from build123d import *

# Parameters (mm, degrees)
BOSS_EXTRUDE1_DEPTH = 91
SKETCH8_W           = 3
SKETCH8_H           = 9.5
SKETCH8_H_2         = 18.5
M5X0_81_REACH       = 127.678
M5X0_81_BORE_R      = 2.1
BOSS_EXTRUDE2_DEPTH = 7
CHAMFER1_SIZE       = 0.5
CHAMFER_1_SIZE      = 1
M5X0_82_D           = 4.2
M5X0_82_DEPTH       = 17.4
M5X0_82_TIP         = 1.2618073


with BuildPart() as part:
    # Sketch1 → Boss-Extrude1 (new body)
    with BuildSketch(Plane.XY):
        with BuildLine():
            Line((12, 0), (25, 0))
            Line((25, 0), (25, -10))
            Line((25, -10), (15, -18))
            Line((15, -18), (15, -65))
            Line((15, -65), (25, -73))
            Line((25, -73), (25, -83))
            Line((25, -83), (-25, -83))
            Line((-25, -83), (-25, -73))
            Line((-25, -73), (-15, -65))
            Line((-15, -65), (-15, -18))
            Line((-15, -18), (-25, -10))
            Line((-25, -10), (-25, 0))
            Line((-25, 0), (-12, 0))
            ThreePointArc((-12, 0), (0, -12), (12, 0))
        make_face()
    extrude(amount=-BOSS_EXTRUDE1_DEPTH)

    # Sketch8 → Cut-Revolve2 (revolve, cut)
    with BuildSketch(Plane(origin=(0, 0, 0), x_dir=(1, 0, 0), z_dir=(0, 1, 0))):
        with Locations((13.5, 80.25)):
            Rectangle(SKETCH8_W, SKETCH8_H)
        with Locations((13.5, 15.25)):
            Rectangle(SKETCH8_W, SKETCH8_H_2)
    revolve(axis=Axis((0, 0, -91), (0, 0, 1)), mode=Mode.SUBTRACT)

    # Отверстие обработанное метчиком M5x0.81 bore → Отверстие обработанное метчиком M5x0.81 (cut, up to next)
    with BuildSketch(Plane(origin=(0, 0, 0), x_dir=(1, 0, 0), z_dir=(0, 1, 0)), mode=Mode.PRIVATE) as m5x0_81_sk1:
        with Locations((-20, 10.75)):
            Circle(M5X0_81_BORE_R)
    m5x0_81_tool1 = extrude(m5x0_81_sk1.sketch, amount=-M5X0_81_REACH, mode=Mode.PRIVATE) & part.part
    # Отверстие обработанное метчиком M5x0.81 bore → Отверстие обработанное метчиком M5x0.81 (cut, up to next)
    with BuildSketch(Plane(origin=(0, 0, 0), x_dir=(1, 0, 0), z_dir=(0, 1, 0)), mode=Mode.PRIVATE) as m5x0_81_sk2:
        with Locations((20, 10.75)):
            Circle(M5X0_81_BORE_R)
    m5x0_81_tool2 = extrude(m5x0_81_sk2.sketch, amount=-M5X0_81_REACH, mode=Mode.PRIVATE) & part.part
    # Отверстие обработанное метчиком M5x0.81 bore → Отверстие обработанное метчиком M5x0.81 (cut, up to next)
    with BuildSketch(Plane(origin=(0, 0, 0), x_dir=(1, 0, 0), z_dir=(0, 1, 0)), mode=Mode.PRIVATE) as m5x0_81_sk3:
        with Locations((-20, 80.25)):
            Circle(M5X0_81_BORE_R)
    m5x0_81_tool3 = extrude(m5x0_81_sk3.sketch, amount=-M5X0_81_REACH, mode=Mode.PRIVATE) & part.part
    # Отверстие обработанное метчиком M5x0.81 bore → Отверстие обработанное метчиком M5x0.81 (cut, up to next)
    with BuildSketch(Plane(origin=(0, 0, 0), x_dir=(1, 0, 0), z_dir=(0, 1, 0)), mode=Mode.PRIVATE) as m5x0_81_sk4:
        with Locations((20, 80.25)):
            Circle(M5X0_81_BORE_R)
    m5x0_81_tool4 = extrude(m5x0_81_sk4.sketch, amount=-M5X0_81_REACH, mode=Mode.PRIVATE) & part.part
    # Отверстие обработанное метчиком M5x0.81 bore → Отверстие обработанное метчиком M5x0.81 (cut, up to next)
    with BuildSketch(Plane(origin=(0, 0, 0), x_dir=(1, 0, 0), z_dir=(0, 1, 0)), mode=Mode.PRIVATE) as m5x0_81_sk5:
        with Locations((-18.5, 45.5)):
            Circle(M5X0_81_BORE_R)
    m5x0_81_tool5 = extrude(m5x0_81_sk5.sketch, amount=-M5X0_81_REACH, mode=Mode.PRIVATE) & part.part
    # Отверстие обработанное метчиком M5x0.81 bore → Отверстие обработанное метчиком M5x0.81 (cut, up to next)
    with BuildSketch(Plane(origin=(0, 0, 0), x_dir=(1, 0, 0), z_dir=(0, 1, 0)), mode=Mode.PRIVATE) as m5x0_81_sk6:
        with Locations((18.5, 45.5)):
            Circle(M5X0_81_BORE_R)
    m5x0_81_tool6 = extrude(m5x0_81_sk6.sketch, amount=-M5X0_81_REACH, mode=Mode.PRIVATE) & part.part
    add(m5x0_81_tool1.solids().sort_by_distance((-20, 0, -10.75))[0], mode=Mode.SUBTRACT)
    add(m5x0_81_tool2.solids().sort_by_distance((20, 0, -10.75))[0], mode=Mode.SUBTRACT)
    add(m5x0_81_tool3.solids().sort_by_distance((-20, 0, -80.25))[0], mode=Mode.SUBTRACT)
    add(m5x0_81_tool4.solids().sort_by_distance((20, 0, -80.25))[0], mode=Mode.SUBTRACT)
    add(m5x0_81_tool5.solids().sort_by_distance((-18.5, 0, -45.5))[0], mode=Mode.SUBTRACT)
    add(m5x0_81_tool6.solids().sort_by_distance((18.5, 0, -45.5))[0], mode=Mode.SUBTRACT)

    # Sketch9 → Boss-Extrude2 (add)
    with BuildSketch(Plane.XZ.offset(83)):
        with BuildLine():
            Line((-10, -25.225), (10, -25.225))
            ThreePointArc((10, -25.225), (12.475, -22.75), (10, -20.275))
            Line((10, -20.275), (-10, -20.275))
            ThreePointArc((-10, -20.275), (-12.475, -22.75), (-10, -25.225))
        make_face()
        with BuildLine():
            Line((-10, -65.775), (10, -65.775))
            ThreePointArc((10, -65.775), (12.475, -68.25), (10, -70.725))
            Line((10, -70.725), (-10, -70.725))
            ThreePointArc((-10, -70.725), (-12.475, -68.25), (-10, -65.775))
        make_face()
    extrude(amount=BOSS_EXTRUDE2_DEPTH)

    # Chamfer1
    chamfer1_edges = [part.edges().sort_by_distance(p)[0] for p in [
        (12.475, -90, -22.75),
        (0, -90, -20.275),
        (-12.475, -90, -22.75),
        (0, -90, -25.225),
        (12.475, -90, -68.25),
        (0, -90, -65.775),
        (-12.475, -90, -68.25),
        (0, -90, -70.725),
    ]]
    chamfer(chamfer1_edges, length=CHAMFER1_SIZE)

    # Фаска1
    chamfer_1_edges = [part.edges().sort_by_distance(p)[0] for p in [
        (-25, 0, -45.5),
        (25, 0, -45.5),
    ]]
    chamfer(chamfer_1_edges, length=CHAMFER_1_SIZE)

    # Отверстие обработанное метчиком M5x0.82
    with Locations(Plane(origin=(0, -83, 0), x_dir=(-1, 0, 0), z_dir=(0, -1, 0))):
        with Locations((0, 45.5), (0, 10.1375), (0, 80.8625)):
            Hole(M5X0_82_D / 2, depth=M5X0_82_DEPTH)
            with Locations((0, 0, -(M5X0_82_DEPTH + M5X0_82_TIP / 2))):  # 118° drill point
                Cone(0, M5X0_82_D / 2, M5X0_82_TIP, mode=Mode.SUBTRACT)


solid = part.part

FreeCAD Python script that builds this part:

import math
import FreeCAD as App
import Part
import Sketcher
Q = App.Units.Quantity


def edges_at(feature, points):
    """Names of the edges that pass closest to the given points."""
    edges = feature.Shape.Edges
    near = lambda p: min(range(len(edges)), key=lambda i: edges[i].distToShape(Part.Vertex(*p))[0])
    return sorted({f"Edge{near(p) + 1}" for p in points})

doc = App.newDocument("Part")
body = doc.addObject("PartDesign::Body", "Body")

sketch1 = doc.addObject("Sketcher::SketchObject", "Sketch")
body.addObject(sketch1)
sketch1.AttachmentSupport = (doc.XY_Plane, [""])
sketch1.MapMode = "FlatFace"
sketch1.addGeometry(Part.LineSegment(App.Vector(25, 0, 0), App.Vector(12, 0, 0)), False)
sketch1.addGeometry(Part.ArcOfCircle(Part.Circle(App.Vector(0, 0, 0), App.Vector(0, 0, 1), 12), math.radians(180), math.radians(360)), False)
sketch1.addGeometry(Part.LineSegment(App.Vector(-12, 0, 0), App.Vector(-25, 0, 0)), False)
sketch1.addGeometry(Part.LineSegment(App.Vector(-25, 0, 0), App.Vector(-25, -10, 0)), False)
sketch1.addGeometry(Part.LineSegment(App.Vector(-25, -10, 0), App.Vector(-15, -18, 0)), False)
sketch1.addGeometry(Part.LineSegment(App.Vector(-15, -18, 0), App.Vector(-15, -65, 0)), False)
sketch1.addGeometry(Part.LineSegment(App.Vector(-15, -65, 0), App.Vector(-25, -73, 0)), False)
sketch1.addGeometry(Part.LineSegment(App.Vector(-25, -73, 0), App.Vector(-25, -83, 0)), False)
sketch1.addGeometry(Part.LineSegment(App.Vector(-25, -83, 0), App.Vector(25, -83, 0)), False)
sketch1.addGeometry(Part.LineSegment(App.Vector(25, -83, 0), App.Vector(25, -73, 0)), False)
sketch1.addGeometry(Part.LineSegment(App.Vector(25, -73, 0), App.Vector(15, -65, 0)), False)
sketch1.addGeometry(Part.LineSegment(App.Vector(15, -65, 0), App.Vector(15, -18, 0)), False)
sketch1.addGeometry(Part.LineSegment(App.Vector(15, -18, 0), App.Vector(25, -10, 0)), False)
sketch1.addGeometry(Part.LineSegment(App.Vector(25, -10, 0), App.Vector(25, 0, 0)), False)
sketch1.addConstraint(Sketcher.Constraint("Coincident", 0, 2, 1, 2))
sketch1.addConstraint(Sketcher.Constraint("Coincident", 1, 1, 2, 1))
sketch1.addConstraint(Sketcher.Constraint("Coincident", 2, 2, 3, 1))
sketch1.addConstraint(Sketcher.Constraint("Coincident", 3, 2, 4, 1))
sketch1.addConstraint(Sketcher.Constraint("Coincident", 4, 2, 5, 1))
sketch1.addConstraint(Sketcher.Constraint("Coincident", 5, 2, 6, 1))
sketch1.addConstraint(Sketcher.Constraint("Coincident", 6, 2, 7, 1))
sketch1.addConstraint(Sketcher.Constraint("Coincident", 7, 2, 8, 1))
sketch1.addConstraint(Sketcher.Constraint("Coincident", 8, 2, 9, 1))
sketch1.addConstraint(Sketcher.Constraint("Coincident", 9, 2, 10, 1))
sketch1.addConstraint(Sketcher.Constraint("Coincident", 10, 2, 11, 1))
sketch1.addConstraint(Sketcher.Constraint("Coincident", 11, 2, 12, 1))
sketch1.addConstraint(Sketcher.Constraint("Coincident", 12, 2, 13, 1))
sketch1.addConstraint(Sketcher.Constraint("Coincident", 13, 2, 0, 1))
sketch1.addConstraint(Sketcher.Constraint("Horizontal", 0))
sketch1.addConstraint(Sketcher.Constraint("Horizontal", 2))
sketch1.addConstraint(Sketcher.Constraint("Vertical", 3))
sketch1.addConstraint(Sketcher.Constraint("Vertical", 5))
sketch1.addConstraint(Sketcher.Constraint("Vertical", 7))
sketch1.addConstraint(Sketcher.Constraint("Horizontal", 8))
sketch1.addConstraint(Sketcher.Constraint("Vertical", 9))
sketch1.addConstraint(Sketcher.Constraint("Vertical", 11))
sketch1.addConstraint(Sketcher.Constraint("Vertical", 13))
sketch1.addConstraint(Sketcher.Constraint("Coincident", 1, 3, -1, 1))
sketch1.addConstraint(Sketcher.Constraint("Symmetric", 2, 2, 13, 2, -1, 1))
sketch1.addConstraint(Sketcher.Constraint("Symmetric", 6, 2, 9, 2, -2))
sketch1.addConstraint(Sketcher.Constraint("Symmetric", 5, 2, 10, 2, -2))
sketch1.addConstraint(Sketcher.Constraint("PointOnObject", 0, 2, -1))
sketch1.addConstraint(Sketcher.Constraint("Parallel", 4, 10))
sketch1.addConstraint(Sketcher.Constraint("Parallel", 6, 12))
sketch1.addConstraint(Sketcher.Constraint("Horizontal", 4, 2, 11, 2))
sketch1.addConstraint(Sketcher.Constraint("Vertical", 3, 2, 6, 2))
sketch1.addConstraint(Sketcher.Constraint("Equal", 3, 7))
sketch1.addConstraint(Sketcher.Constraint("Radius", 1, Q("12 mm")))
sketch1.addConstraint(Sketcher.Constraint("DistanceX", 0, 2, 0, 1, Q("13 mm")))
sketch1.addConstraint(Sketcher.Constraint("DistanceY", 3, 2, 3, 1, Q("10 mm")))
sketch1.addConstraint(Sketcher.Constraint("DistanceY", 5, 2, 5, 1, Q("47 mm")))
sketch1.addConstraint(Sketcher.Constraint("DistanceX", 4, 2, -1, 1, Q("15 mm")))
sketch1.addConstraint(Sketcher.Constraint("DistanceY", 4, 2, -1, 1, Q("18 mm")))
pad1 = doc.addObject("PartDesign::Pad", "Pad")
body.addObject(pad1)
pad1.Profile = sketch1
pad1.Length = 91
pad1.Reversed = True

sketch2 = doc.addObject("Sketcher::SketchObject", "Sketch001")
body.addObject(sketch2)
sketch2.AttachmentSupport = (doc.XZ_Plane, [""])
sketch2.MapMode = "FlatFace"
sketch2.addGeometry(Part.LineSegment(App.Vector(12, -85, 0), App.Vector(12, -75.5, 0)), False)
sketch2.addGeometry(Part.LineSegment(App.Vector(12, -75.5, 0), App.Vector(15, -75.5, 0)), False)
sketch2.addGeometry(Part.LineSegment(App.Vector(15, -75.5, 0), App.Vector(15, -85, 0)), False)
sketch2.addGeometry(Part.LineSegment(App.Vector(15, -85, 0), App.Vector(12, -85, 0)), False)
sketch2.addGeometry(Part.LineSegment(App.Vector(12, -24.5, 0), App.Vector(12, -6, 0)), False)
sketch2.addGeometry(Part.LineSegment(App.Vector(12, -6, 0), App.Vector(15, -6, 0)), False)
sketch2.addGeometry(Part.LineSegment(App.Vector(15, -6, 0), App.Vector(15, -24.5, 0)), False)
sketch2.addGeometry(Part.LineSegment(App.Vector(15, -24.5, 0), App.Vector(12, -24.5, 0)), False)
sketch2.addConstraint(Sketcher.Constraint("Coincident", 0, 2, 1, 1))
sketch2.addConstraint(Sketcher.Constraint("Coincident", 1, 2, 2, 1))
sketch2.addConstraint(Sketcher.Constraint("Coincident", 2, 2, 3, 1))
sketch2.addConstraint(Sketcher.Constraint("Coincident", 3, 2, 0, 1))
sketch2.addConstraint(Sketcher.Constraint("Coincident", 4, 2, 5, 1))
sketch2.addConstraint(Sketcher.Constraint("Coincident", 5, 2, 6, 1))
sketch2.addConstraint(Sketcher.Constraint("Coincident", 6, 2, 7, 1))
sketch2.addConstraint(Sketcher.Constraint("Coincident", 7, 2, 4, 1))
sketch2.addConstraint(Sketcher.Constraint("Vertical", 0))
sketch2.addConstraint(Sketcher.Constraint("Horizontal", 1))
sketch2.addConstraint(Sketcher.Constraint("Vertical", 2))
sketch2.addConstraint(Sketcher.Constraint("Horizontal", 3))
sketch2.addConstraint(Sketcher.Constraint("Vertical", 4))
sketch2.addConstraint(Sketcher.Constraint("Horizontal", 5))
sketch2.addConstraint(Sketcher.Constraint("Vertical", 6))
sketch2.addConstraint(Sketcher.Constraint("Horizontal", 7))
sketch2.addConstraint(Sketcher.Constraint("Vertical", 3, 2, 4, 2))
sketch2.addConstraint(Sketcher.Constraint("Vertical", 2, 2, 5, 2))
sketch2.addConstraint(Sketcher.Constraint("DistanceX", 1, 1, 1, 2, Q("3 mm")))
sketch2.addConstraint(Sketcher.Constraint("DistanceY", 0, 1, 0, 2, Q("9.5 mm")))
sketch2.addConstraint(Sketcher.Constraint("DistanceY", 4, 1, 4, 2, Q("18.5 mm")))
sketch2.addConstraint(Sketcher.Constraint("DistanceX", -1, 1, 0, 2, Q("12 mm")))
sketch2.addConstraint(Sketcher.Constraint("DistanceY", 2, 2, -1, 1, Q("85 mm")))
sketch2.addConstraint(Sketcher.Constraint("DistanceY", 4, 2, -1, 1, Q("6 mm")))
groove = doc.addObject("PartDesign::Groove", "Groove")
body.addObject(groove)
groove.Profile = sketch2
groove.ReferenceAxis = (sketch2, ["V_Axis"])
groove.Angle = 360

sketch3 = doc.addObject("Sketcher::SketchObject", "Sketch002")
body.addObject(sketch3)
sketch3.AttachmentSupport = (doc.XZ_Plane, [""])
sketch3.MapMode = "FlatFace"
sketch3.addGeometry(Part.Circle(App.Vector(-20, -10.8, 0), App.Vector(0, 0, 1), 2.1), False)
sketch3.addConstraint(Sketcher.Constraint("Diameter", 0, Q("4.2 mm")))
sketch3.addConstraint(Sketcher.Constraint("DistanceX", 0, 3, -1, 1, Q("20 mm")))
sketch3.addConstraint(Sketcher.Constraint("DistanceY", 0, 3, -1, 1, Q("10.75 mm")))
pocket1 = doc.addObject("PartDesign::Pocket", "Pocket")
body.addObject(pocket1)
pocket1.Profile = sketch3
pocket1.Type = "UpToFirst"
pocket1.Reversed = True

sketch4 = doc.addObject("Sketcher::SketchObject", "Sketch003")
body.addObject(sketch4)
sketch4.AttachmentSupport = (doc.XZ_Plane, [""])
sketch4.MapMode = "FlatFace"
sketch4.addGeometry(Part.Circle(App.Vector(20, -10.8, 0), App.Vector(0, 0, 1), 2.1), False)
sketch4.addConstraint(Sketcher.Constraint("Diameter", 0, Q("4.2 mm")))
sketch4.addConstraint(Sketcher.Constraint("DistanceX", -1, 1, 0, 3, Q("20 mm")))
sketch4.addConstraint(Sketcher.Constraint("DistanceY", 0, 3, -1, 1, Q("10.75 mm")))
pocket2 = doc.addObject("PartDesign::Pocket", "Pocket001")
body.addObject(pocket2)
pocket2.Profile = sketch4
pocket2.Type = "UpToFirst"
pocket2.Reversed = True

sketch5 = doc.addObject("Sketcher::SketchObject", "Sketch004")
body.addObject(sketch5)
sketch5.AttachmentSupport = (doc.XZ_Plane, [""])
sketch5.MapMode = "FlatFace"
sketch5.addGeometry(Part.Circle(App.Vector(-20, -80.2, 0), App.Vector(0, 0, 1), 2.1), False)
sketch5.addConstraint(Sketcher.Constraint("Diameter", 0, Q("4.2 mm")))
sketch5.addConstraint(Sketcher.Constraint("DistanceX", 0, 3, -1, 1, Q("20 mm")))
sketch5.addConstraint(Sketcher.Constraint("DistanceY", 0, 3, -1, 1, Q("80.25 mm")))
pocket3 = doc.addObject("PartDesign::Pocket", "Pocket002")
body.addObject(pocket3)
pocket3.Profile = sketch5
pocket3.Type = "UpToFirst"
pocket3.Reversed = True

sketch6 = doc.addObject("Sketcher::SketchObject", "Sketch005")
body.addObject(sketch6)
sketch6.AttachmentSupport = (doc.XZ_Plane, [""])
sketch6.MapMode = "FlatFace"
sketch6.addGeometry(Part.Circle(App.Vector(20, -80.2, 0), App.Vector(0, 0, 1), 2.1), False)
sketch6.addConstraint(Sketcher.Constraint("Diameter", 0, Q("4.2 mm")))
sketch6.addConstraint(Sketcher.Constraint("DistanceX", -1, 1, 0, 3, Q("20 mm")))
sketch6.addConstraint(Sketcher.Constraint("DistanceY", 0, 3, -1, 1, Q("80.25 mm")))
pocket4 = doc.addObject("PartDesign::Pocket", "Pocket003")
body.addObject(pocket4)
pocket4.Profile = sketch6
pocket4.Type = "UpToFirst"
pocket4.Reversed = True

sketch7 = doc.addObject("Sketcher::SketchObject", "Sketch006")
body.addObject(sketch7)
sketch7.AttachmentSupport = (doc.XZ_Plane, [""])
sketch7.MapMode = "FlatFace"
sketch7.addGeometry(Part.Circle(App.Vector(-18.5, -45.5, 0), App.Vector(0, 0, 1), 2.1), False)
sketch7.addConstraint(Sketcher.Constraint("Diameter", 0, Q("4.2 mm")))
sketch7.addConstraint(Sketcher.Constraint("DistanceX", 0, 3, -1, 1, Q("18.5 mm")))
sketch7.addConstraint(Sketcher.Constraint("DistanceY", 0, 3, -1, 1, Q("45.5 mm")))
pocket5 = doc.addObject("PartDesign::Pocket", "Pocket004")
body.addObject(pocket5)
pocket5.Profile = sketch7
pocket5.Type = "UpToFirst"
pocket5.Reversed = True

sketch8 = doc.addObject("Sketcher::SketchObject", "Sketch007")
body.addObject(sketch8)
sketch8.AttachmentSupport = (doc.XZ_Plane, [""])
sketch8.MapMode = "FlatFace"
sketch8.addGeometry(Part.Circle(App.Vector(18.5, -45.5, 0), App.Vector(0, 0, 1), 2.1), False)
sketch8.addConstraint(Sketcher.Constraint("Diameter", 0, Q("4.2 mm")))
sketch8.addConstraint(Sketcher.Constraint("DistanceX", -1, 1, 0, 3, Q("18.5 mm")))
sketch8.addConstraint(Sketcher.Constraint("DistanceY", 0, 3, -1, 1, Q("45.5 mm")))
pocket6 = doc.addObject("PartDesign::Pocket", "Pocket005")
body.addObject(pocket6)
pocket6.Profile = sketch8
pocket6.Type = "UpToFirst"
pocket6.Reversed = True

sketch9 = doc.addObject("Sketcher::SketchObject", "Sketch008")
body.addObject(sketch9)
sketch9.AttachmentSupport = (doc.XZ_Plane, [""])
sketch9.MapMode = "FlatFace"
sketch9.AttachmentOffset = App.Placement(App.Vector(0, 0, 83), App.Rotation())
sketch9.addGeometry(Part.LineSegment(App.Vector(-10, -25.2, 0), App.Vector(10, -25.2, 0)), False)
sketch9.addGeometry(Part.ArcOfCircle(Part.Circle(App.Vector(10, -22.8, 0), App.Vector(0, 0, 1), 2.5), math.radians(-90), math.radians(90)), False)
sketch9.addGeometry(Part.LineSegment(App.Vector(10, -20.3, 0), App.Vector(-10, -20.3, 0)), False)
sketch9.addGeometry(Part.ArcOfCircle(Part.Circle(App.Vector(-10, -22.8, 0), App.Vector(0, 0, 1), 2.5), math.radians(90), math.radians(270)), False)
sketch9.addGeometry(Part.LineSegment(App.Vector(10, -65.8, 0), App.Vector(-10, -65.8, 0)), False)
sketch9.addGeometry(Part.ArcOfCircle(Part.Circle(App.Vector(-10, -68.2, 0), App.Vector(0, 0, 1), 2.5), math.radians(90), math.radians(270)), False)
sketch9.addGeometry(Part.LineSegment(App.Vector(-10, -70.7, 0), App.Vector(10, -70.7, 0)), False)
sketch9.addGeometry(Part.ArcOfCircle(Part.Circle(App.Vector(10, -68.2, 0), App.Vector(0, 0, 1), 2.5), math.radians(-90), math.radians(90)), False)
sketch9.addConstraint(Sketcher.Constraint("Tangent", 0, 2, 1, 1))
sketch9.addConstraint(Sketcher.Constraint("Tangent", 1, 2, 2, 1))
sketch9.addConstraint(Sketcher.Constraint("Tangent", 2, 2, 3, 1))
sketch9.addConstraint(Sketcher.Constraint("Tangent", 3, 2, 0, 1))
sketch9.addConstraint(Sketcher.Constraint("Tangent", 4, 2, 5, 1))
sketch9.addConstraint(Sketcher.Constraint("Tangent", 5, 2, 6, 1))
sketch9.addConstraint(Sketcher.Constraint("Tangent", 6, 2, 7, 1))
sketch9.addConstraint(Sketcher.Constraint("Tangent", 7, 2, 4, 1))
sketch9.addConstraint(Sketcher.Constraint("Horizontal", 0))
sketch9.addConstraint(Sketcher.Constraint("Horizontal", 2))
sketch9.addConstraint(Sketcher.Constraint("Horizontal", 4))
sketch9.addConstraint(Sketcher.Constraint("Horizontal", 6))
sketch9.addConstraint(Sketcher.Constraint("Equal", 3, 5))
sketch9.addConstraint(Sketcher.Constraint("Vertical", 3, 3, 5, 3))
sketch9.addConstraint(Sketcher.Constraint("Vertical", 1, 3, 7, 3))
sketch9.addConstraint(Sketcher.Constraint("DistanceX", 0, 1, 0, 2, Q("20 mm")))
sketch9.addConstraint(Sketcher.Constraint("DistanceX", -1, 1, 1, 3, Q("10 mm")))
sketch9.addConstraint(Sketcher.Constraint("Radius", 1, Q("2.475 mm")))
sketch9.addConstraint(Sketcher.Constraint("DistanceY", 5, 3, 3, 3, Q("45.5 mm")))
sketch9.addConstraint(Sketcher.Constraint("DistanceY", 1, 3, -1, 1, Q("22.75 mm")))
pad2 = doc.addObject("PartDesign::Pad", "Pad001")
body.addObject(pad2)
pad2.Profile = sketch9
pad2.Length = 7
doc.recompute()

chamfer = doc.addObject("PartDesign::Chamfer", "Chamfer")
body.addObject(chamfer)
chamfer.Base = (pad2, edges_at(pad2, [
    (12.475, -90, -22.75),
    (0, -90, -20.275),
    (-12.475, -90, -22.75),
    (0, -90, -25.225),
    (12.475, -90, -68.25),
    (0, -90, -65.775),
    (-12.475, -90, -68.25),
    (0, -90, -70.725),
]))
chamfer.Size = 0.5
doc.recompute()

chamfer2 = doc.addObject("PartDesign::Chamfer", "Chamfer001")
body.addObject(chamfer2)
chamfer2.Base = (chamfer, edges_at(chamfer, [(-25, 0, -45.5), (25, 0, -45.5)]))
chamfer2.Size = 1

sketch10 = doc.addObject("Sketcher::SketchObject", "Sketch009")
body.addObject(sketch10)
sketch10.AttachmentSupport = (doc.XZ_Plane, [""])
sketch10.MapMode = "FlatFace"
sketch10.AttachmentOffset = App.Placement(App.Vector(0, 0, 83), App.Rotation())
sketch10.addGeometry(Part.Circle(App.Vector(0, -45.5, 0), App.Vector(0, 0, 1), 2.1), False)
sketch10.addGeometry(Part.Circle(App.Vector(0, -10.1, 0), App.Vector(0, 0, 1), 2.1), False)
sketch10.addGeometry(Part.Circle(App.Vector(0, -80.9, 0), App.Vector(0, 0, 1), 2.1), False)
sketch10.addConstraint(Sketcher.Constraint("Equal", 0, 1))
sketch10.addConstraint(Sketcher.Constraint("Equal", 1, 2))
sketch10.addConstraint(Sketcher.Constraint("PointOnObject", 0, 3, -2))
sketch10.addConstraint(Sketcher.Constraint("PointOnObject", 1, 3, -2))
sketch10.addConstraint(Sketcher.Constraint("PointOnObject", 2, 3, -2))
sketch10.addConstraint(Sketcher.Constraint("Diameter", 0, Q("4.2 mm")))
sketch10.addConstraint(Sketcher.Constraint("DistanceY", 0, 3, -1, 1, Q("45.5 mm")))
sketch10.addConstraint(Sketcher.Constraint("DistanceY", 2, 3, 1, 3, Q("70.725 mm")))
sketch10.addConstraint(Sketcher.Constraint("DistanceY", 1, 3, -1, 1, Q("10.1375 mm")))
doc.recompute()
hole = doc.addObject("PartDesign::Hole", "Hole")
body.addObject(hole)
hole.Profile = sketch10
hole.ThreadType = "None"
hole.Diameter = 4.2
hole.DepthType = "Dimension"
hole.Depth = 17.4
hole.DrillPoint = "Angled"
hole.DrillPointAngle = 118

doc.recompute()
